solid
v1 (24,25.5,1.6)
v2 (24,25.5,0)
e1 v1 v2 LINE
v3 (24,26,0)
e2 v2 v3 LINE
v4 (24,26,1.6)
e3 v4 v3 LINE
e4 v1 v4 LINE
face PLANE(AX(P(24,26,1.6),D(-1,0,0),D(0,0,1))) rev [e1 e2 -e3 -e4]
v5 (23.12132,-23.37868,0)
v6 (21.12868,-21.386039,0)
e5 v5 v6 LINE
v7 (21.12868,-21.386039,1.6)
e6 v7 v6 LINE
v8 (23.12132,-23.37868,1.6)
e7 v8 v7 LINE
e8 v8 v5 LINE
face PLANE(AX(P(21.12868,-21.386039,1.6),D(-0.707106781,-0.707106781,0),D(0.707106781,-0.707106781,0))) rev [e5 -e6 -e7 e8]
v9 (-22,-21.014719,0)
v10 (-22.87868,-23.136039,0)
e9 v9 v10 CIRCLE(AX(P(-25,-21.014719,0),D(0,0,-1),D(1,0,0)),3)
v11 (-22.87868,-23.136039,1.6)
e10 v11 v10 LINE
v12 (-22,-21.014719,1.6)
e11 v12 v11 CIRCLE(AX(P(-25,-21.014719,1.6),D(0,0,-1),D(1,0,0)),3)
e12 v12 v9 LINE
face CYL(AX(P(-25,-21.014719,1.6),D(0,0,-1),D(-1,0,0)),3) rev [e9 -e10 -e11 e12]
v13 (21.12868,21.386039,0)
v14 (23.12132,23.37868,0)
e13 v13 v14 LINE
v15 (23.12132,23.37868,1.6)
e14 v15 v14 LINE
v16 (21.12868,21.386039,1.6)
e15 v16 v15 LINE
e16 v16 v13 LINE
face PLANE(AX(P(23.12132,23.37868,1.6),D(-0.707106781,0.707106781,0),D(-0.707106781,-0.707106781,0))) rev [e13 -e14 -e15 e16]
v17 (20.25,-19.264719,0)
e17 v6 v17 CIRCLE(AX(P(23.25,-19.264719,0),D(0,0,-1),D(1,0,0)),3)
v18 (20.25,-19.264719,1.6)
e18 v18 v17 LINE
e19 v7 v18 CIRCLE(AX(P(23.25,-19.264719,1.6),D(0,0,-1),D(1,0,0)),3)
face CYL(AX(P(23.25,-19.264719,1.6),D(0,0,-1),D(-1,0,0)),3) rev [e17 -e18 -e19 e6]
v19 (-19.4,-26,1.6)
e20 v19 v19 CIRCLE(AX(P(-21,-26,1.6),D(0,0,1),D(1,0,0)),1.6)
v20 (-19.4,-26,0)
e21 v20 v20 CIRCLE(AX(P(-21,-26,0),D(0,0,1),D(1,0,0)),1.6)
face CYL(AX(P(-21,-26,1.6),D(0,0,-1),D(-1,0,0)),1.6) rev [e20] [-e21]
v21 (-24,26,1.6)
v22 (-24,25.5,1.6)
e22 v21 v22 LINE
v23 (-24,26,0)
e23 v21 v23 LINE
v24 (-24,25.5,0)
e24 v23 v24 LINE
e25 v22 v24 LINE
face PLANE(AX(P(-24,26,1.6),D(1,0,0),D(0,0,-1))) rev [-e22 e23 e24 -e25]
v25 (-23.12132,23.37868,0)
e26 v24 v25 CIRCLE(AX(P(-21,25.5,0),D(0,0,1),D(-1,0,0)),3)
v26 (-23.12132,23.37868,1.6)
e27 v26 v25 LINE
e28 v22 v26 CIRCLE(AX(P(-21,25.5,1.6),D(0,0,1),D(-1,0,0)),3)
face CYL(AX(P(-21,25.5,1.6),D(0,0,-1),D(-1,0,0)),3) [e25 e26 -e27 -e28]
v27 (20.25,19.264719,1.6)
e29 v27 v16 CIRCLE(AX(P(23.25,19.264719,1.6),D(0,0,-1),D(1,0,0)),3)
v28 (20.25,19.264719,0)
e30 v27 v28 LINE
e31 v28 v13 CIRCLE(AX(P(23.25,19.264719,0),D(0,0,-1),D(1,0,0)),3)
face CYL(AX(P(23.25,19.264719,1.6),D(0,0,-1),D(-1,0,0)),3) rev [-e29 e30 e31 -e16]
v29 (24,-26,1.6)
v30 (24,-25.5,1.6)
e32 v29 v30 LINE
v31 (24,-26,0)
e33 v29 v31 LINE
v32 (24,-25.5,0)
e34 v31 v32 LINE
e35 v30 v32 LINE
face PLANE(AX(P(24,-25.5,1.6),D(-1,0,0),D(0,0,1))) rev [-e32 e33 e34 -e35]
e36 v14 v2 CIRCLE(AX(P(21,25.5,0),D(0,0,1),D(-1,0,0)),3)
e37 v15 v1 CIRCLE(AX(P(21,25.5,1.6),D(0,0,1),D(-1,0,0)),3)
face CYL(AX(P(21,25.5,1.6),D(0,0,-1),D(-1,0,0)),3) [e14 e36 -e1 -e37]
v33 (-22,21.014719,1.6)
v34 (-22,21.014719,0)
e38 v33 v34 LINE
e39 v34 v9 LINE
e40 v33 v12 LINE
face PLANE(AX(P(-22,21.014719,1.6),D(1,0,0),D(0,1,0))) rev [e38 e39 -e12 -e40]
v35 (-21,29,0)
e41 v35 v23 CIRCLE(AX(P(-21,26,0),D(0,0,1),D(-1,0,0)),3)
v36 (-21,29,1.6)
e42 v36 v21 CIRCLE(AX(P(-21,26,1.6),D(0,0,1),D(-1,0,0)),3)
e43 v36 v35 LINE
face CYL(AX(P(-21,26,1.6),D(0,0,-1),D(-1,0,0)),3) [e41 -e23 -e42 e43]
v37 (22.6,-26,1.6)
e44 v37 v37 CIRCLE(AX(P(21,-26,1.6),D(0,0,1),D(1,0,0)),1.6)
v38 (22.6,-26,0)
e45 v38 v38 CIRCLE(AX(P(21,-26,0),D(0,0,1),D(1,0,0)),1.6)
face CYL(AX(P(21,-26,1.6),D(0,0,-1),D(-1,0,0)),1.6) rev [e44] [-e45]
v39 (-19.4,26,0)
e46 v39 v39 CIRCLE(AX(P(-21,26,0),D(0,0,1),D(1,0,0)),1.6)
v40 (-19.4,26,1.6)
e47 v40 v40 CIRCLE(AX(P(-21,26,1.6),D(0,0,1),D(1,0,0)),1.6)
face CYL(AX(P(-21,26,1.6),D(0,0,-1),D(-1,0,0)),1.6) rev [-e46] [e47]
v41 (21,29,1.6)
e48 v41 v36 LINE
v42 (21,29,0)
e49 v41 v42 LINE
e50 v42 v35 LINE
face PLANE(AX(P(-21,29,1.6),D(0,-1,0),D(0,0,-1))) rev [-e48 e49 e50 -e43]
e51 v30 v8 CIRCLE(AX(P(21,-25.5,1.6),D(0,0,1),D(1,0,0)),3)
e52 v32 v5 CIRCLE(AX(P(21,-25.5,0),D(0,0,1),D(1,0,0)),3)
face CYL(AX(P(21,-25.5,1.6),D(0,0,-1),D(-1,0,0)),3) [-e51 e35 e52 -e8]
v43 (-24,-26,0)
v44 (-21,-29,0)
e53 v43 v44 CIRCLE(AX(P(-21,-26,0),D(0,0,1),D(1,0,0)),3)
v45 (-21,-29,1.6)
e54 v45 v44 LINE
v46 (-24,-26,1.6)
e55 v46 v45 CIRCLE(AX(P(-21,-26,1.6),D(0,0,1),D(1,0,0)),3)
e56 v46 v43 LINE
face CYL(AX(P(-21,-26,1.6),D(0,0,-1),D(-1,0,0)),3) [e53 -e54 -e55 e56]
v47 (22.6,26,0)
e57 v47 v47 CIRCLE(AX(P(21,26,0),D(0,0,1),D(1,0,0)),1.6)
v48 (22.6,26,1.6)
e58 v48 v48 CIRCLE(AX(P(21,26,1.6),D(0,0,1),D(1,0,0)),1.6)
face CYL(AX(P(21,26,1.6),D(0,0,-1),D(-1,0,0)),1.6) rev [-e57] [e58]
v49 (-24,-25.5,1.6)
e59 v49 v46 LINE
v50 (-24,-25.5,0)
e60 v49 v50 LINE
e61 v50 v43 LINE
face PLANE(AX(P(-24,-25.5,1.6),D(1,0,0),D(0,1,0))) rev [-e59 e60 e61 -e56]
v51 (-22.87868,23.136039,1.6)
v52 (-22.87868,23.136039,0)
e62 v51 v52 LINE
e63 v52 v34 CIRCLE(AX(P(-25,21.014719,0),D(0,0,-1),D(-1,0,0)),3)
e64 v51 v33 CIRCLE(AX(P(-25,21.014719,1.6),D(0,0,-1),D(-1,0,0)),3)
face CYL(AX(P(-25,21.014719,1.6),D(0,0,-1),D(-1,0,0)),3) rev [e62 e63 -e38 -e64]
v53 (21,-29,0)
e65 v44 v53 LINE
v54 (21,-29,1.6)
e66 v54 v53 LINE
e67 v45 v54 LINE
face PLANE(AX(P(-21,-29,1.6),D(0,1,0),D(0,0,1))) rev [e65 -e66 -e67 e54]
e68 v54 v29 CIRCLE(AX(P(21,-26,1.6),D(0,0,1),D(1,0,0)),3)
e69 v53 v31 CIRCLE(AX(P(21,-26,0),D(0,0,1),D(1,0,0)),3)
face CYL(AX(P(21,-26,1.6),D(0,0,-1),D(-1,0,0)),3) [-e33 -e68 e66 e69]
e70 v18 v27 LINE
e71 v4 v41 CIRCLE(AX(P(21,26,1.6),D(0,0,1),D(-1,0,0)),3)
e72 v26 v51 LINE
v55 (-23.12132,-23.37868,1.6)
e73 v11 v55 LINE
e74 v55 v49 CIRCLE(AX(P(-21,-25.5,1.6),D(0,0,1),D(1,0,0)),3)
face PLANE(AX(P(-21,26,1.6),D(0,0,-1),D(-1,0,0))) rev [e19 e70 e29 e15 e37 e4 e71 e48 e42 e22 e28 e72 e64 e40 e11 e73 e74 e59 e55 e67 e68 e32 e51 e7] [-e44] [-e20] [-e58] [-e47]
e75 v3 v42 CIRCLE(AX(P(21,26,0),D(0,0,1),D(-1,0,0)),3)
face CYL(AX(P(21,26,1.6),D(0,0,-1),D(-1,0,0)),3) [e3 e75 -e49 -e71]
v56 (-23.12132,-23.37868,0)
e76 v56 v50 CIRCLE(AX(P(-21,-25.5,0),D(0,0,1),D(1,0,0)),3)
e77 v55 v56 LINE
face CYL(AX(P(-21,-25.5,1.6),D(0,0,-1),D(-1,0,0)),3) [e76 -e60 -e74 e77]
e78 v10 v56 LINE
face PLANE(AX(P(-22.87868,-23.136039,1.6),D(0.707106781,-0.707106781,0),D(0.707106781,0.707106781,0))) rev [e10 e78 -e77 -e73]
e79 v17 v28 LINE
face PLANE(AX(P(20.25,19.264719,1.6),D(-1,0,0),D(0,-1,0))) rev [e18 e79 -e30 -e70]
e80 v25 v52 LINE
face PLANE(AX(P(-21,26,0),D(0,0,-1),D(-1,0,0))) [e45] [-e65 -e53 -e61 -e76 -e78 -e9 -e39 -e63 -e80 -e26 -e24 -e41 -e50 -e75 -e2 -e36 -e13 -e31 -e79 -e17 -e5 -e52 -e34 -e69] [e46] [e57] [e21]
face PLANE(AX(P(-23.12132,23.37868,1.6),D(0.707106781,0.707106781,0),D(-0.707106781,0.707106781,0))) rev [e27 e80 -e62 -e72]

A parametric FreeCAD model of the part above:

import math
import FreeCAD as App
import Part
import Sketcher

V = App.Vector

doc = App.newDocument("Part")
body = doc.addObject("PartDesign::Body", "Body")

# Sketch on XY plane
sketch1 = body.newObject("Sketcher::SketchObject", "Sketch")
sketch1.AttachmentSupport = (doc.getObject("XY_Plane"), [""])
sketch1.MapMode = "FlatFace"
sketch1.addGeometry([
    Part.LineSegment(V(21.13, 21.39, 0), V(23.12, 23.38, 0)),  # 0
    Part.ArcOfCircle(Part.Circle(V(21, 25.5, 0), V(0, 0, 1), 3), math.radians(-45), math.radians(0)),  # 1
    Part.LineSegment(V(24, 25.5, 0), V(24, 26, 0)),  # 2
    Part.ArcOfCircle(Part.Circle(V(21, 26, 0), V(0, 0, 1), 3), math.radians(0), math.radians(90)),  # 3
    Part.LineSegment(V(21, 29, 0), V(-21, 29, 0)),  # 4
    Part.ArcOfCircle(Part.Circle(V(-21, 26, 0), V(0, 0, 1), 3), math.radians(90), math.radians(180)),  # 5
    Part.LineSegment(V(-24, 26, 0), V(-24, 25.5, 0)),  # 6
    Part.ArcOfCircle(Part.Circle(V(-21, 25.5, 0), V(0, 0, 1), 3), math.radians(180), math.radians(225)),  # 7
    Part.LineSegment(V(-23.12, 23.38, 0), V(-22.88, 23.14, 0)),  # 8
    Part.ArcOfCircle(Part.Circle(V(-25, 21.01, 0), V(0, 0, 1), 3), math.radians(0), math.radians(45)),  # 9
    Part.LineSegment(V(-22, 21.01, 0), V(-22, -21.01, 0)),  # 10
    Part.ArcOfCircle(Part.Circle(V(-25, -21.01, 0), V(0, 0, 1), 3), math.radians(-45), math.radians(0)),  # 11
    Part.LineSegment(V(-22.88, -23.14, 0), V(-23.12, -23.38, 0)),  # 12
    Part.ArcOfCircle(Part.Circle(V(-21, -25.5, 0), V(0, 0, 1), 3), math.radians(135), math.radians(180)),  # 13
    Part.LineSegment(V(-24, -25.5, 0), V(-24, -26, 0)),  # 14
    Part.ArcOfCircle(Part.Circle(V(-21, -26, 0), V(0, 0, 1), 3), math.radians(180), math.radians(270)),  # 15
    Part.LineSegment(V(-21, -29, 0), V(21, -29, 0)),  # 16
    Part.ArcOfCircle(Part.Circle(V(21, -26, 0), V(0, 0, 1), 3), math.radians(-90), math.radians(0)),  # 17
    Part.LineSegment(V(24, -26, 0), V(24, -25.5, 0)),  # 18
    Part.ArcOfCircle(Part.Circle(V(21, -25.5, 0), V(0, 0, 1), 3), math.radians(0), math.radians(45)),  # 19
    Part.LineSegment(V(23.12, -23.38, 0), V(21.13, -21.39, 0)),  # 20
    Part.ArcOfCircle(Part.Circle(V(23.25, -19.26, 0), V(0, 0, 1), 3), math.radians(180), math.radians(225)),  # 21
    Part.LineSegment(V(20.25, -19.26, 0), V(20.25, 19.26, 0)),  # 22
    Part.ArcOfCircle(Part.Circle(V(23.25, 19.26, 0), V(0, 0, 1), 3), math.radians(135), math.radians(180)),  # 23
    Part.Circle(V(21, -26, 0), V(0, 0, 1), 1.6),  # 24
    Part.Circle(V(-21, -26, 0), V(0, 0, 1), 1.6),  # 25
    Part.Circle(V(21, 26, 0), V(0, 0, 1), 1.6),  # 26
    Part.Circle(V(-21, 26, 0), V(0, 0, 1), 1.6),  # 27
], False)
sketch1.addConstraint([
    Sketcher.Constraint("Tangent", 0, 2, 1, 1),
    Sketcher.Constraint("Tangent", 1, 2, 2, 1),
    Sketcher.Constraint("Tangent", 2, 2, 3, 1),
    Sketcher.Constraint("Tangent", 3, 2, 4, 1),
    Sketcher.Constraint("Tangent", 4, 2, 5, 1),
    Sketcher.Constraint("Tangent", 5, 2, 6, 1),
    Sketcher.Constraint("Tangent", 6, 2, 7, 1),
    Sketcher.Constraint("Tangent", 7, 2, 8, 1),
    Sketcher.Constraint("Tangent", 8, 2, 9, 2),
    Sketcher.Constraint("Tangent", 9, 1, 10, 1),
    Sketcher.Constraint("Tangent", 10, 2, 11, 2),
    Sketcher.Constraint("Tangent", 11, 1, 12, 1),
    Sketcher.Constraint("Tangent", 12, 2, 13, 1),
    Sketcher.Constraint("Tangent", 13, 2, 14, 1),
    Sketcher.Constraint("Tangent", 14, 2, 15, 1),
    Sketcher.Constraint("Tangent", 15, 2, 16, 1),
    Sketcher.Constraint("Tangent", 16, 2, 17, 1),
    Sketcher.Constraint("Tangent", 17, 2, 18, 1),
    Sketcher.Constraint("Tangent", 18, 2, 19, 1),
    Sketcher.Constraint("Tangent", 19, 2, 20, 1),
    Sketcher.Constraint("Tangent", 20, 2, 21, 2),
    Sketcher.Constraint("Tangent", 21, 1, 22, 1),
    Sketcher.Constraint("Tangent", 22, 2, 23, 2),
    Sketcher.Constraint("Tangent", 23, 1, 0, 1),
    Sketcher.Constraint("Vertical", 2),
    Sketcher.Constraint("Horizontal", 4),
    Sketcher.Constraint("Vertical", 6),
    Sketcher.Constraint("Vertical", 10),
    Sketcher.Constraint("Vertical", 14),
    Sketcher.Constraint("Horizontal", 16),
    Sketcher.Constraint("Vertical", 18),
    Sketcher.Constraint("Vertical", 22),
    Sketcher.Constraint("Coincident", 24, 3, 17, 3),
    Sketcher.Constraint("Coincident", 25, 3, 15, 3),
    Sketcher.Constraint("Coincident", 26, 3, 3, 3),
    Sketcher.Constraint("Coincident", 27, 3, 5, 3),
    Sketcher.Constraint("Equal", 1, 3),
    Sketcher.Constraint("Equal", 3, 5),
    Sketcher.Constraint("Equal", 5, 7),
    Sketcher.Constraint("Equal", 7, 9),
    Sketcher.Constraint("Equal", 9, 11),
    Sketcher.Constraint("Equal", 11, 13),
    Sketcher.Constraint("Equal", 13, 15),
    Sketcher.Constraint("Equal", 15, 17),
    Sketcher.Constraint("Equal", 17, 19),
    Sketcher.Constraint("Equal", 19, 21),
    Sketcher.Constraint("Equal", 21, 23),
    Sketcher.Constraint("Equal", 24, 25),
    Sketcher.Constraint("Equal", 25, 26),
    Sketcher.Constraint("Equal", 26, 27),
    Sketcher.Constraint("Symmetric", 1, 3, 13, 3, -1, 1),
    Sketcher.Constraint("Symmetric", 5, 3, 17, 3, -1, 1),
    Sketcher.Constraint("Symmetric", 7, 2, 19, 2, -1, 1),
    Sketcher.Constraint("Symmetric", 1, 3, 7, 3, -2),
    Sketcher.Constraint("Perpendicular", 0, 8),
    Sketcher.Constraint("Perpendicular", 8, 12),
    Sketcher.Constraint("Horizontal", 0, 2, 7, 2),
    Sketcher.Constraint("Radius", 1, 3.0),
    Sketcher.Constraint("Diameter", 24, 3.2),
    Sketcher.Constraint("DistanceX", 4, 2, 4, 1, 42.0),
    Sketcher.Constraint("DistanceY", 2, 1, 2, 2, 0.5),
    Sketcher.Constraint("DistanceY", -1, 1, 3, 3, 26.0),
    Sketcher.Constraint("DistanceX", 9, 3, -1, 1, 25.0),
    Sketcher.Constraint("DistanceX", -1, 1, 21, 3, 23.25),
])
pad1 = body.newObject("PartDesign::Pad", "Pad")
pad1.Profile = sketch1
pad1.Length = 1.6

doc.recompute()
